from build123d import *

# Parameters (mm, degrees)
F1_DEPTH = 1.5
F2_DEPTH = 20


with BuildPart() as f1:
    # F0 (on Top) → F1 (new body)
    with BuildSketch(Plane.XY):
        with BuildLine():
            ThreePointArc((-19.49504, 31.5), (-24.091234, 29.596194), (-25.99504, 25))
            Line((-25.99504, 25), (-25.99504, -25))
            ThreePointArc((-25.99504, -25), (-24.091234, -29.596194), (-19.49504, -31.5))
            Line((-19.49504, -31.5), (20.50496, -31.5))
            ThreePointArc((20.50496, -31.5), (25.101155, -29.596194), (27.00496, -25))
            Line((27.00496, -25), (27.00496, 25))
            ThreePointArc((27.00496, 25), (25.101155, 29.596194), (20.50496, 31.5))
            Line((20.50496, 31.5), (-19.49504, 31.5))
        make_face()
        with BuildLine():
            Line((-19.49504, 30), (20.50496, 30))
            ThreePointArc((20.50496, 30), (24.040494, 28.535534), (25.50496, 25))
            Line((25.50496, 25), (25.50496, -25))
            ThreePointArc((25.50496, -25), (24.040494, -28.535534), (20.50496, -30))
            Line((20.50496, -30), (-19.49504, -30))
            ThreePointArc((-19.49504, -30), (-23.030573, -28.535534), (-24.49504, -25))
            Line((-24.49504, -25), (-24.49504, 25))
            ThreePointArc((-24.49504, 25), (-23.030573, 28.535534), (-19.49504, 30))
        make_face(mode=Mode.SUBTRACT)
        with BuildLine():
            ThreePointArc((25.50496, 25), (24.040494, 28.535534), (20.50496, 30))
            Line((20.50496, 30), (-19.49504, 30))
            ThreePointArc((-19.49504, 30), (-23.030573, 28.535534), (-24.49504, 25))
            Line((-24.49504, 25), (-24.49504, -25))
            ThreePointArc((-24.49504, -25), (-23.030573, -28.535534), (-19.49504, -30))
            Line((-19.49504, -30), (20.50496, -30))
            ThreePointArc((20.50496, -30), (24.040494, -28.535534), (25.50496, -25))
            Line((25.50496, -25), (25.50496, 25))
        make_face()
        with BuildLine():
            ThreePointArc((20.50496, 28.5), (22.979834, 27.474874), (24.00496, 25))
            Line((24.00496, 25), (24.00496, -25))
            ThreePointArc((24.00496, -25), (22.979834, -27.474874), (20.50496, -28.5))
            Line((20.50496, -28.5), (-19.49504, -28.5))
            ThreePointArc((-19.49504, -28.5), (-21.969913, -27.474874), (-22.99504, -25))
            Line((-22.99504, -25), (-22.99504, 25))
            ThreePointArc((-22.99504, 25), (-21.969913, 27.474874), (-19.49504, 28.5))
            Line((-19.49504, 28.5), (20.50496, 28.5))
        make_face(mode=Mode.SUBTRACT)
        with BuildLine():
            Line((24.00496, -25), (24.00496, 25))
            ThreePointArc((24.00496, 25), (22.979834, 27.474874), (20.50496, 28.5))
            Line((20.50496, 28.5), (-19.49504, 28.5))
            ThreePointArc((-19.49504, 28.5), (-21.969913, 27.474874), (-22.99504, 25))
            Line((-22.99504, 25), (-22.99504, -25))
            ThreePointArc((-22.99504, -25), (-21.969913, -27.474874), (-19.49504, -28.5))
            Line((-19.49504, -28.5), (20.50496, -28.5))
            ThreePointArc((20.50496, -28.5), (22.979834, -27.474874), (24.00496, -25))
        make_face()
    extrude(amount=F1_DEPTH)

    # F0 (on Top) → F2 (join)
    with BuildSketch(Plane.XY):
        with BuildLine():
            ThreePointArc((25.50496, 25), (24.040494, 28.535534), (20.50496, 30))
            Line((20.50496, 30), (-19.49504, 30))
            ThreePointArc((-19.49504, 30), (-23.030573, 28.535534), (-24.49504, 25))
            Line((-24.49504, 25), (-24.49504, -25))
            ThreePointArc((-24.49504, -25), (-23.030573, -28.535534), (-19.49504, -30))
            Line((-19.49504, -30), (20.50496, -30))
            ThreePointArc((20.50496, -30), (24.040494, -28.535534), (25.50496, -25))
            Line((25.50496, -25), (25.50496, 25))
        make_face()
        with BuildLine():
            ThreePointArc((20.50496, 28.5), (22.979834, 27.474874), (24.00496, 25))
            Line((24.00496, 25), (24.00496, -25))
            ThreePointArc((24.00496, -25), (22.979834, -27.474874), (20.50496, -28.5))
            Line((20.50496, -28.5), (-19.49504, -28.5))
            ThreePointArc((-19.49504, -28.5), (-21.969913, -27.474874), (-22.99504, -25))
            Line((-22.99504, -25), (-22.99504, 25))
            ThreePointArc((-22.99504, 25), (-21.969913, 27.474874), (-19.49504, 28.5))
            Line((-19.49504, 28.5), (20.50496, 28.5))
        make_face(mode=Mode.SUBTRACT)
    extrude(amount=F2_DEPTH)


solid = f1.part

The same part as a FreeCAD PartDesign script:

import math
import FreeCAD as App
import Part
import Sketcher
from FreeCAD import Vector

doc = App.newDocument("Part")
params = doc.addObject("Spreadsheet::Sheet", "Params")
for row, (alias, value) in enumerate([
    ("sketch1_radius", "6.5 mm"),
    ("sketch1_width", "40 mm"),
    ("sketch1_height", "50 mm"),
    ("pad1_length", "1.5 mm"),
    ("sketch2_radius", "5 mm"),
    ("sketch2_radius2", "3.499999 mm"),
    ("sketch2_width", "40 mm"),
    ("sketch2_height", "50 mm"),
    ("pad2_length", "20 mm"),
], start=1):
    params.set(f"A{row}", alias)
    params.set(f"B{row}", "=" + value)
    params.setAlias(f"B{row}", alias)

body = doc.addObject("PartDesign::Body", "Body")

# Sketch on XY plane
sketch1 = body.newObject("Sketcher::SketchObject", "Sketch")
sketch1.AttachmentSupport = (doc.getObject("XY_Plane"), [""])
sketch1.MapMode = "FlatFace"
sketch1.addGeometry(Part.ArcOfCircle(Part.Circle(Vector(-19, 25, 0), Vector(0, 0, 1), 7), math.radians(90), math.radians(180)), False)
sketch1.addGeometry(Part.LineSegment(Vector(-26, 25, 0), Vector(-26, -25, 0)), False)
sketch1.addGeometry(Part.ArcOfCircle(Part.Circle(Vector(-19, -25, 0), Vector(0, 0, 1), 7), math.radians(-180), math.radians(-90)), False)
sketch1.addGeometry(Part.LineSegment(Vector(-19, -32, 0), Vector(21, -32, 0)), False)
sketch1.addGeometry(Part.ArcOfCircle(Part.Circle(Vector(21, -25, 0), Vector(0, 0, 1), 6), math.radians(-90), math.radians(0)), False)
sketch1.addGeometry(Part.LineSegment(Vector(27, -25, 0), Vector(27, 25, 0)), False)
sketch1.addGeometry(Part.ArcOfCircle(Part.Circle(Vector(21, 25, 0), Vector(0, 0, 1), 6), math.radians(0), math.radians(90)), False)
sketch1.addGeometry(Part.LineSegment(Vector(21, 32, 0), Vector(-19, 32, 0)), False)
sketch1.addConstraint(Sketcher.Constraint("Tangent", 0, 2, 1, 1))
sketch1.addConstraint(Sketcher.Constraint("Tangent", 1, 2, 2, 1))
sketch1.addConstraint(Sketcher.Constraint("Tangent", 2, 2, 3, 1))
sketch1.addConstraint(Sketcher.Constraint("Tangent", 3, 2, 4, 1))
sketch1.addConstraint(Sketcher.Constraint("Tangent", 4, 2, 5, 1))
sketch1.addConstraint(Sketcher.Constraint("Tangent", 5, 2, 6, 1))
sketch1.addConstraint(Sketcher.Constraint("Tangent", 6, 2, 7, 1))
sketch1.addConstraint(Sketcher.Constraint("Tangent", 7, 2, 0, 1))
sketch1.addConstraint(Sketcher.Constraint("Vertical", 1))
sketch1.addConstraint(Sketcher.Constraint("Horizontal", 3))
sketch1.addConstraint(Sketcher.Constraint("Vertical", 5))
sketch1.addConstraint(Sketcher.Constraint("Horizontal", 7))
sketch1.addConstraint(Sketcher.Constraint("Equal", 0, 2))
sketch1.addConstraint(Sketcher.Constraint("Equal", 2, 4))
sketch1.addConstraint(Sketcher.Constraint("Equal", 4, 6))
sketch1.addConstraint(Sketcher.Constraint("Radius", 0, 6.5))
sketch1.addConstraint(Sketcher.Constraint("DistanceX", 3, 1, 3, 2, 40.0))
sketch1.addConstraint(Sketcher.Constraint("DistanceY", 1, 2, 1, 1, 50.0))
sketch1.addConstraint(Sketcher.Constraint("DistanceY", -1, 1, 0, 3, 25.0))
sketch1.addConstraint(Sketcher.Constraint("DistanceX", 0, 3, -1, 1, 19.49504))
sketch1.setExpression("Constraints[15]", "Params.sketch1_radius")
sketch1.setExpression("Constraints[16]", "Params.sketch1_width")
sketch1.setExpression("Constraints[17]", "Params.sketch1_height")
pad1 = body.newObject("PartDesign::Pad", "Pad")
pad1.Profile = sketch1
pad1.setExpression("Length", "Params.pad1_length")

# Sketch on XY plane
sketch2 = body.newObject("Sketcher::SketchObject", "Sketch001")
sketch2.AttachmentSupport = (doc.getObject("XY_Plane"), [""])
sketch2.MapMode = "FlatFace"
sketch2.addGeometry(Part.ArcOfCircle(Part.Circle(Vector(20.5, 25, 0), Vector(0, 0, 1), 5), math.radians(0), math.radians(90)), False)
sketch2.addGeometry(Part.LineSegment(Vector(20.5, 30, 0), Vector(-19.5, 30, 0)), False)
sketch2.addGeometry(Part.ArcOfCircle(Part.Circle(Vector(-19.5, 25, 0), Vector(0, 0, 1), 5), math.radians(90), math.radians(180)), False)
sketch2.addGeometry(Part.LineSegment(Vector(-24.5, 25, 0), Vector(-24.5, -25, 0)), False)
sketch2.addGeometry(Part.ArcOfCircle(Part.Circle(Vector(-19.5, -25, 0), Vector(0, 0, 1), 5), math.radians(-180), math.radians(-90)), False)
sketch2.addGeometry(Part.LineSegment(Vector(-19.5, -30, 0), Vector(20.5, -30, 0)), False)
sketch2.addGeometry(Part.ArcOfCircle(Part.Circle(Vector(20.5, -25, 0), Vector(0, 0, 1), 5), math.radians(-90), math.radians(0)), False)
sketch2.addGeometry(Part.LineSegment(Vector(25.5, -25, 0), Vector(25.5, 25, 0)), False)
sketch2.addGeometry(Part.LineSegment(Vector(-19.5, 28.5, 0), Vector(20.5, 28.5, 0)), False)
sketch2.addGeometry(Part.ArcOfCircle(Part.Circle(Vector(20.5, 25, 0), Vector(0, 0, 1), 3.5), math.radians(0), math.radians(90)), False)
sketch2.addGeometry(Part.LineSegment(Vector(24, 25, 0), Vector(24, -25, 0)), False)
sketch2.addGeometry(Part.ArcOfCircle(Part.Circle(Vector(20.5, -25, 0), Vector(0, 0, 1), 3.5), math.radians(-90), math.radians(0)), False)
sketch2.addGeometry(Part.LineSegment(Vector(20.5, -28.5, 0), Vector(-19.5, -28.5, 0)), False)
sketch2.addGeometry(Part.ArcOfCircle(Part.Circle(Vector(-19.5, -25, 0), Vector(0, 0, 1), 3.5), math.radians(-180), math.radians(-90)), False)
sketch2.addGeometry(Part.LineSegment(Vector(-23, -25, 0), Vector(-23, 25, 0)), False)
sketch2.addGeometry(Part.ArcOfCircle(Part.Circle(Vector(-19.5, 25, 0), Vector(0, 0, 1), 3.5), math.radians(90), math.radians(180)), False)
sketch2.addConstraint(Sketcher.Constraint("Tangent", 0, 2, 1, 1))
sketch2.addConstraint(Sketcher.Constraint("Tangent", 1, 2, 2, 1))
sketch2.addConstraint(Sketcher.Constraint("Tangent", 2, 2, 3, 1))
sketch2.addConstraint(Sketcher.Constraint("Tangent", 3, 2, 4, 1))
sketch2.addConstraint(Sketcher.Constraint("Tangent", 4, 2, 5, 1))
sketch2.addConstraint(Sketcher.Constraint("Tangent", 5, 2, 6, 1))
sketch2.addConstraint(Sketcher.Constraint("Tangent", 6, 2, 7, 1))
sketch2.addConstraint(Sketcher.Constraint("Tangent", 7, 2, 0, 1))
sketch2.addConstraint(Sketcher.Constraint("Tangent", 8, 2, 9, 2))
sketch2.addConstraint(Sketcher.Constraint("Tangent", 9, 1, 10, 1))
sketch2.addConstraint(Sketcher.Constraint("Tangent", 10, 2, 11, 2))
sketch2.addConstraint(Sketcher.Constraint("Tangent", 11, 1, 12, 1))
sketch2.addConstraint(Sketcher.Constraint("Tangent", 12, 2, 13, 2))
sketch2.addConstraint(Sketcher.Constraint("Tangent", 13, 1, 14, 1))
sketch2.addConstraint(Sketcher.Constraint("Tangent", 14, 2, 15, 2))
sketch2.addConstraint(Sketcher.Constraint("Tangent", 15, 1, 8, 1))
sketch2.addConstraint(Sketcher.Constraint("Horizontal", 1))
sketch2.addConstraint(Sketcher.Constraint("Vertical", 3))
sketch2.addConstraint(Sketcher.Constraint("Horizontal", 5))
sketch2.addConstraint(Sketcher.Constraint("Vertical", 7))
sketch2.addConstraint(Sketcher.Constraint("Horizontal", 8))
sketch2.addConstraint(Sketcher.Constraint("Vertical", 10))
sketch2.addConstraint(Sketcher.Constraint("Horizontal", 12))
sketch2.addConstraint(Sketcher.Constraint("Vertical", 14))
sketch2.addConstraint(Sketcher.Constraint("Coincident", 9, 3, 0, 3))
sketch2.addConstraint(Sketcher.Constraint("Coincident", 11, 3, 6, 3))
sketch2.addConstraint(Sketcher.Constraint("Coincident", 13, 3, 4, 3))
sketch2.addConstraint(Sketcher.Constraint("Equal", 0, 2))
sketch2.addConstraint(Sketcher.Constraint("Equal", 2, 4))
sketch2.addConstraint(Sketcher.Constraint("Equal", 4, 6))
sketch2.addConstraint(Sketcher.Constraint("Equal", 13, 15))
sketch2.addConstraint(Sketcher.Constraint("Radius", 0, 5.0))
sketch2.addConstraint(Sketcher.Constraint("Radius", 9, 3.499999))
sketch2.addConstraint(Sketcher.Constraint("DistanceX", 1, 2, 1, 1, 40.0))
sketch2.addConstraint(Sketcher.Constraint("DistanceY", 3, 2, 3, 1, 50.0))
sketch2.addConstraint(Sketcher.Constraint("DistanceY", -1, 1, 0, 3, 25.0))
sketch2.addConstraint(Sketcher.Constraint("DistanceX", -1, 1, 0, 3, 20.50496))
sketch2.setExpression("Constraints[31]", "Params.sketch2_radius")
sketch2.setExpression("Constraints[32]", "Params.sketch2_radius2")
sketch2.setExpression("Constraints[33]", "Params.sketch2_width")
sketch2.setExpression("Constraints[34]", "Params.sketch2_height")
pad2 = body.newObject("PartDesign::Pad", "Pad001")
pad2.Profile = sketch2
pad2.setExpression("Length", "Params.pad2_length")

doc.recompute()
